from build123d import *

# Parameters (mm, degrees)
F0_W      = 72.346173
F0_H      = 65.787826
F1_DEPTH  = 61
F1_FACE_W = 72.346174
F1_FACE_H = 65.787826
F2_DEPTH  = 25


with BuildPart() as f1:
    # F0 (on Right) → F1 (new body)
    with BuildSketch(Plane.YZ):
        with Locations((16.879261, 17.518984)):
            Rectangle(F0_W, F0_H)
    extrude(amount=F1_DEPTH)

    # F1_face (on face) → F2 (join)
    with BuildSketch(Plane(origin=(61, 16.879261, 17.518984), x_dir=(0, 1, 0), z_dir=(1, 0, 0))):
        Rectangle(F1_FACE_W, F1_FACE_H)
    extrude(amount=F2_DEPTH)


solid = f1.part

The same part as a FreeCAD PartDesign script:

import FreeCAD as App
import Part
import Sketcher

V = App.Vector


def add_polygon(sketch, points):
    """Adds a closed chain of lines whose ends are joined by coincident constraints."""
    first, n = sketch.GeometryCount, len(points)
    for a, b in zip(points, points[1:] + points[:1]):
        sketch.addGeometry(Part.LineSegment(App.Vector(*a, 0), App.Vector(*b, 0)), False)
    for i in range(n):
        sketch.addConstraint(Sketcher.Constraint("Coincident", first + i, 2, first + (i + 1) % n, 1))

doc = App.newDocument("Part")
body = doc.addObject("PartDesign::Body", "Body")

sketch1 = doc.addObject("Sketcher::SketchObject", "Sketch")
body.addObject(sketch1)
sketch1.AttachmentSupport = (doc.YZ_Plane, [""])
sketch1.MapMode = "FlatFace"
add_polygon(sketch1, [(-19, 50), (-19, -15), (53, -15), (53, 50)])
sketch1.addConstraint([
    Sketcher.Constraint("Vertical", 0),
    Sketcher.Constraint("Horizontal", 1),
    Sketcher.Constraint("Vertical", 2),
    Sketcher.Constraint("Horizontal", 3),
    Sketcher.Constraint("DistanceX", 1, 1, 1, 2, 72.346173),
    Sketcher.Constraint("DistanceY", 0, 2, 0, 1, 65.787826),
    Sketcher.Constraint("DistanceY", 0, 2, -1, 1, 15.374929),
    Sketcher.Constraint("DistanceX", 0, 2, -1, 1, 19.293826),
])
pad1 = doc.addObject("PartDesign::Pad", "Pad")
body.addObject(pad1)
pad1.Profile = sketch1
pad1.Length = 61

sketch2 = doc.addObject("Sketcher::SketchObject", "Sketch001")
body.addObject(sketch2)
sketch2.AttachmentSupport = (doc.YZ_Plane, [""])
sketch2.MapMode = "FlatFace"
sketch2.AttachmentOffset = App.Placement(V(0, 0, 61), App.Rotation())
add_polygon(sketch2, [(-19, 50), (-19, -15), (53, -15), (53, 50)])
sketch2.addConstraint([
    Sketcher.Constraint("Vertical", 0),
    Sketcher.Constraint("Horizontal", 1),
    Sketcher.Constraint("Vertical", 2),
    Sketcher.Constraint("Horizontal", 3),
    Sketcher.Constraint("DistanceX", 1, 1, 1, 2, 72.346174),
    Sketcher.Constraint("DistanceY", 0, 2, 0, 1, 65.787826),
    Sketcher.Constraint("DistanceY", 0, 2, -1, 1, 15.374929),
    Sketcher.Constraint("DistanceX", -1, 1, 1, 2, 53.052348),
])
pad2 = doc.addObject("PartDesign::Pad", "Pad001")
body.addObject(pad2)
pad2.Profile = sketch2
pad2.Length = 25

doc.recompute()
